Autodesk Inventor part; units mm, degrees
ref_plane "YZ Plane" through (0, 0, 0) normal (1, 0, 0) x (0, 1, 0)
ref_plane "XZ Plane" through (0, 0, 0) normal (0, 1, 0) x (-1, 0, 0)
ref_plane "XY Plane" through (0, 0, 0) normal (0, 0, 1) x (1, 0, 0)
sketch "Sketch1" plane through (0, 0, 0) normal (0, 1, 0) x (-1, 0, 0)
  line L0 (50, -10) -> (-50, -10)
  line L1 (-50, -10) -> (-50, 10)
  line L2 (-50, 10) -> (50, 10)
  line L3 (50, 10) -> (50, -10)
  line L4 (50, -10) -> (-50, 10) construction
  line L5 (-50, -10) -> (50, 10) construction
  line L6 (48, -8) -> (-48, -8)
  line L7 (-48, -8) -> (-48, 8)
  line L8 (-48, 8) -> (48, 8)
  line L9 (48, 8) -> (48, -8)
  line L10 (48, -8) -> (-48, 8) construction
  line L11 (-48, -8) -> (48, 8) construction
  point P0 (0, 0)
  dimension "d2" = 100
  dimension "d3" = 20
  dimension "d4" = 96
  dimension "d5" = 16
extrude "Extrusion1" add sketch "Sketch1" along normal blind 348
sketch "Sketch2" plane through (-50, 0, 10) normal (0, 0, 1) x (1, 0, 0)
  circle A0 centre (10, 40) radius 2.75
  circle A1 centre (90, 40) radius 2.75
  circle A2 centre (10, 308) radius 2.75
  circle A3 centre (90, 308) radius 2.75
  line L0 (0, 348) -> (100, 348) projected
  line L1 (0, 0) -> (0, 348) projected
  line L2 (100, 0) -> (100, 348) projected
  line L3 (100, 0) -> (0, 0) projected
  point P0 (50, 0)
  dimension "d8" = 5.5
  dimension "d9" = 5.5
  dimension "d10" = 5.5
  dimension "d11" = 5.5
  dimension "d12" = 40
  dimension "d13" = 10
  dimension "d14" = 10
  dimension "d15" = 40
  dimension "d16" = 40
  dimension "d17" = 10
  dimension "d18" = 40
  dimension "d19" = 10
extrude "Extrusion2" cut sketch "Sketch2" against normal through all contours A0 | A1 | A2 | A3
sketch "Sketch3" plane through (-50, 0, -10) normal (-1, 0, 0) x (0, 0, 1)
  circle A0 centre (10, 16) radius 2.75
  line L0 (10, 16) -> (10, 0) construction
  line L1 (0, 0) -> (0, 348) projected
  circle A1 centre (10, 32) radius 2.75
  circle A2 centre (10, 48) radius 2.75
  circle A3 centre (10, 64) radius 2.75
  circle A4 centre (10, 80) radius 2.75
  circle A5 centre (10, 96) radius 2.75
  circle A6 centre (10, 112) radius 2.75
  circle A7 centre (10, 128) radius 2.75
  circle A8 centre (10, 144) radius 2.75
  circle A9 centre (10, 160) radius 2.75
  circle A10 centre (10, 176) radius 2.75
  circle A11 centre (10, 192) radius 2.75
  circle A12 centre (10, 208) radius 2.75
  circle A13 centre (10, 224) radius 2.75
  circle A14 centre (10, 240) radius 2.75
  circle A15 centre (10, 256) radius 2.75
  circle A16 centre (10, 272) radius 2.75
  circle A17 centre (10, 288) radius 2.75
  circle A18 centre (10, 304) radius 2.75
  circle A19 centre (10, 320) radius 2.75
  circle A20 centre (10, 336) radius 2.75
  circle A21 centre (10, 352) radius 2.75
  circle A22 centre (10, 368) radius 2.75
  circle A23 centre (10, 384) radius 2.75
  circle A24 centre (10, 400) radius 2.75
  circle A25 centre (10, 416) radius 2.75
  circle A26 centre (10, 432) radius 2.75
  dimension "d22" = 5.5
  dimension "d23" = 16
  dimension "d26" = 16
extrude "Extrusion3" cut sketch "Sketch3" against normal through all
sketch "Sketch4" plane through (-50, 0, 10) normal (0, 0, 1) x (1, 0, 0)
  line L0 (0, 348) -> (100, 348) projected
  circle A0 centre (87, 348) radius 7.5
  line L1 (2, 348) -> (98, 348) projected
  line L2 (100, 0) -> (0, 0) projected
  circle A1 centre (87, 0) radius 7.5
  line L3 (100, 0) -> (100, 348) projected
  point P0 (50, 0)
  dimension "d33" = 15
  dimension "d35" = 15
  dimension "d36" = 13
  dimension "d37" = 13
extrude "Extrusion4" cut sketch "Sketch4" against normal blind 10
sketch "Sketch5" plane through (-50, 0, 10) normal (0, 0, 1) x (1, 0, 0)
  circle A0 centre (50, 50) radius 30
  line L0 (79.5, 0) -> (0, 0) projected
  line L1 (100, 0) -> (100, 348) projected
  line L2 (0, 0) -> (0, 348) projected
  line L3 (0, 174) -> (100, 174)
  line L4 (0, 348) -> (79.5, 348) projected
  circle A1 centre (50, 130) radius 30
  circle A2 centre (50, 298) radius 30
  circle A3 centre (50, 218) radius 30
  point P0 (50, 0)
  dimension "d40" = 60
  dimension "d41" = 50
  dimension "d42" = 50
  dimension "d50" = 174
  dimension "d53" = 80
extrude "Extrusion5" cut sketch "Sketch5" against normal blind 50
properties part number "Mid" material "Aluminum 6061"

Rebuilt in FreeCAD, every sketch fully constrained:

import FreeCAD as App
import Part
import Sketcher
Q = App.Units.Quantity


def add_polygon(sketch, points):
    """Adds a closed chain of lines whose ends are joined by coincident constraints."""
    first, n = sketch.GeometryCount, len(points)
    for a, b in zip(points, points[1:] + points[:1]):
        sketch.addGeometry(Part.LineSegment(App.Vector(*a, 0), App.Vector(*b, 0)), False)
    for i in range(n):
        sketch.addConstraint(Sketcher.Constraint("Coincident", first + i, 2, first + (i + 1) % n, 1))

doc = App.newDocument("Part")
body = doc.addObject("PartDesign::Body", "Body")

# Sketch on XZ plane
sketch1 = body.newObject("Sketcher::SketchObject", "Sketch")
sketch1.AttachmentSupport = (doc.getObject("XZ_Plane"), [""])
sketch1.MapMode = "FlatFace"
add_polygon(sketch1, [(50, -10), (-50, -10), (-50, 10), (50, 10)])  # lines 0-3
add_polygon(sketch1, [(-48, 8), (-48, -8), (48, -8), (48, 8)])  # lines 4-7
sketch1.addConstraint(Sketcher.Constraint("Horizontal", 0))
sketch1.addConstraint(Sketcher.Constraint("Vertical", 1))
sketch1.addConstraint(Sketcher.Constraint("Horizontal", 2))
sketch1.addConstraint(Sketcher.Constraint("Vertical", 3))
sketch1.addConstraint(Sketcher.Constraint("Vertical", 4))
sketch1.addConstraint(Sketcher.Constraint("Horizontal", 5))
sketch1.addConstraint(Sketcher.Constraint("Vertical", 6))
sketch1.addConstraint(Sketcher.Constraint("Horizontal", 7))
sketch1.addConstraint(Sketcher.Constraint("Symmetric", 0, 2, 2, 2, -1, 1))
sketch1.addConstraint(Sketcher.Constraint("Symmetric", 4, 2, 6, 2, -1, 1))
sketch1.addConstraint(Sketcher.Constraint("DistanceX", 0, 2, 0, 1, Q("100 mm")))
sketch1.addConstraint(Sketcher.Constraint("DistanceX", 5, 1, 5, 2, Q("96 mm")))
sketch1.addConstraint(Sketcher.Constraint("DistanceY", 1, 1, 1, 2, Q("20 mm")))
sketch1.addConstraint(Sketcher.Constraint("DistanceY", 4, 2, 4, 1, Q("16 mm")))
pad1 = body.newObject("PartDesign::Pad", "Pad")
pad1.Profile = sketch1
pad1.Length = 348
pad1.Reversed = True

# Sketch on XY plane
sketch2 = body.newObject("Sketcher::SketchObject", "Sketch001")
sketch2.AttachmentSupport = (doc.getObject("XY_Plane"), [""])
sketch2.MapMode = "FlatFace"
sketch2.AttachmentOffset = App.Placement(App.Vector(0, 0, 10), App.Rotation())
sketch2.addGeometry(Part.Circle(App.Vector(-40, 40, 0), App.Vector(0, 0, 1), 2.8), False)
sketch2.addGeometry(Part.Circle(App.Vector(40, 40, 0), App.Vector(0, 0, 1), 2.8), False)
sketch2.addGeometry(Part.Circle(App.Vector(-40, 308, 0), App.Vector(0, 0, 1), 2.8), False)
sketch2.addGeometry(Part.Circle(App.Vector(40, 308, 0), App.Vector(0, 0, 1), 2.8), False)
sketch2.addConstraint(Sketcher.Constraint("Equal", 0, 1))
sketch2.addConstraint(Sketcher.Constraint("Equal", 1, 2))
sketch2.addConstraint(Sketcher.Constraint("Equal", 2, 3))
sketch2.addConstraint(Sketcher.Constraint("Symmetric", 0, 3, 1, 3, -2))
sketch2.addConstraint(Sketcher.Constraint("Symmetric", 2, 3, 3, 3, -2))
sketch2.addConstraint(Sketcher.Constraint("Vertical", 0, 3, 2, 3))
sketch2.addConstraint(Sketcher.Constraint("Diameter", 0, Q("5.5 mm")))
sketch2.addConstraint(Sketcher.Constraint("DistanceX", 0, 3, -1, 1, Q("40 mm")))
sketch2.addConstraint(Sketcher.Constraint("DistanceY", -1, 1, 0, 3, Q("40 mm")))
sketch2.addConstraint(Sketcher.Constraint("DistanceY", -1, 1, 2, 3, Q("308 mm")))
pocket1 = body.newObject("PartDesign::Pocket", "Pocket")
pocket1.Profile = sketch2
pocket1.Type = "ThroughAll"

# Sketch on YZ plane
sketch3 = body.newObject("Sketcher::SketchObject", "Sketch002")
sketch3.AttachmentSupport = (doc.getObject("YZ_Plane"), [""])
sketch3.MapMode = "FlatFace"
sketch3.AttachmentOffset = App.Placement(App.Vector(0, 0, -50), App.Rotation())
sketch3.addGeometry(Part.Circle(App.Vector(16, 0, 0), App.Vector(0, 0, 1), 2.8), False)
sketch3.addGeometry(Part.Circle(App.Vector(32, 0, 0), App.Vector(0, 0, 1), 2.8), False)
sketch3.addGeometry(Part.Circle(App.Vector(48, 0, 0), App.Vector(0, 0, 1), 2.8), False)
sketch3.addGeometry(Part.Circle(App.Vector(64, 0, 0), App.Vector(0, 0, 1), 2.8), False)
sketch3.addGeometry(Part.Circle(App.Vector(80, 0, 0), App.Vector(0, 0, 1), 2.8), False)
sketch3.addGeometry(Part.Circle(App.Vector(96, 0, 0), App.Vector(0, 0, 1), 2.8), False)
sketch3.addGeometry(Part.Circle(App.Vector(112, 0, 0), App.Vector(0, 0, 1), 2.8), False)
sketch3.addGeometry(Part.Circle(App.Vector(128, 0, 0), App.Vector(0, 0, 1), 2.8), False)
sketch3.addGeometry(Part.Circle(App.Vector(144, 0, 0), App.Vector(0, 0, 1), 2.8), False)
sketch3.addGeometry(Part.Circle(App.Vector(160, 0, 0), App.Vector(0, 0, 1), 2.8), False)
sketch3.addGeometry(Part.Circle(App.Vector(176, 0, 0), App.Vector(0, 0, 1), 2.8), False)
sketch3.addGeometry(Part.Circle(App.Vector(192, 0, 0), App.Vector(0, 0, 1), 2.8), False)
sketch3.addGeometry(Part.Circle(App.Vector(208, 0, 0), App.Vector(0, 0, 1), 2.8), False)
sketch3.addGeometry(Part.Circle(App.Vector(224, 0, 0), App.Vector(0, 0, 1), 2.8), False)
sketch3.addGeometry(Part.Circle(App.Vector(240, 0, 0), App.Vector(0, 0, 1), 2.8), False)
sketch3.addGeometry(Part.Circle(App.Vector(256, 0, 0), App.Vector(0, 0, 1), 2.8), False)
sketch3.addGeometry(Part.Circle(App.Vector(272, 0, 0), App.Vector(0, 0, 1), 2.8), False)
sketch3.addGeometry(Part.Circle(App.Vector(288, 0, 0), App.Vector(0, 0, 1), 2.8), False)
sketch3.addGeometry(Part.Circle(App.Vector(304, 0, 0), App.Vector(0, 0, 1), 2.8), False)
sketch3.addGeometry(Part.Circle(App.Vector(320, 0, 0), App.Vector(0, 0, 1), 2.8), False)
sketch3.addGeometry(Part.Circle(App.Vector(336, 0, 0), App.Vector(0, 0, 1), 2.8), False)
sketch3.addGeometry(Part.Circle(App.Vector(352, 0, 0), App.Vector(0, 0, 1), 2.8), False)
sketch3.addGeometry(Part.Circle(App.Vector(368, 0, 0), App.Vector(0, 0, 1), 2.8), False)
sketch3.addGeometry(Part.Circle(App.Vector(384, 0, 0), App.Vector(0, 0, 1), 2.8), False)
sketch3.addGeometry(Part.Circle(App.Vector(400, 0, 0), App.Vector(0, 0, 1), 2.8), False)
sketch3.addGeometry(Part.Circle(App.Vector(416, 0, 0), App.Vector(0, 0, 1), 2.8), False)
sketch3.addGeometry(Part.Circle(App.Vector(432, 0, 0), App.Vector(0, 0, 1), 2.8), False)
sketch3.addConstraint(Sketcher.Constraint("Equal", 0, 1))
sketch3.addConstraint(Sketcher.Constraint("Equal", 1, 2))
sketch3.addConstraint(Sketcher.Constraint("Equal", 2, 3))
sketch3.addConstraint(Sketcher.Constraint("Equal", 3, 4))
sketch3.addConstraint(Sketcher.Constraint("Equal", 4, 5))
sketch3.addConstraint(Sketcher.Constraint("Equal", 5, 6))
sketch3.addConstraint(Sketcher.Constraint("Equal", 6, 7))
sketch3.addConstraint(Sketcher.Constraint("Equal", 7, 8))
sketch3.addConstraint(Sketcher.Constraint("Equal", 8, 9))
sketch3.addConstraint(Sketcher.Constraint("Equal", 9, 10))
sketch3.addConstraint(Sketcher.Constraint("Equal", 10, 11))
sketch3.addConstraint(Sketcher.Constraint("Equal", 11, 12))
sketch3.addConstraint(Sketcher.Constraint("Equal", 12, 13))
sketch3.addConstraint(Sketcher.Constraint("Equal", 13, 14))
sketch3.addConstraint(Sketcher.Constraint("Equal", 14, 15))
sketch3.addConstraint(Sketcher.Constraint("Equal", 15, 16))
sketch3.addConstraint(Sketcher.Constraint("Equal", 16, 17))
sketch3.addConstraint(Sketcher.Constraint("Equal", 17, 18))
sketch3.addConstraint(Sketcher.Constraint("Equal", 18, 19))
sketch3.addConstraint(Sketcher.Constraint("Equal", 19, 20))
sketch3.addConstraint(Sketcher.Constraint("Equal", 20, 21))
sketch3.addConstraint(Sketcher.Constraint("Equal", 21, 22))
sketch3.addConstraint(Sketcher.Constraint("Equal", 22, 23))
sketch3.addConstraint(Sketcher.Constraint("Equal", 23, 24))
sketch3.addConstraint(Sketcher.Constraint("Equal", 24, 25))
sketch3.addConstraint(Sketcher.Constraint("Equal", 25, 26))
sketch3.addConstraint(Sketcher.Constraint("PointOnObject", 0, 3, -1))
sketch3.addConstraint(Sketcher.Constraint("PointOnObject", 1, 3, -1))
sketch3.addConstraint(Sketcher.Constraint("PointOnObject", 2, 3, -1))
sketch3.addConstraint(Sketcher.Constraint("PointOnObject", 3, 3, -1))
sketch3.addConstraint(Sketcher.Constraint("PointOnObject", 4, 3, -1))
sketch3.addConstraint(Sketcher.Constraint("PointOnObject", 5, 3, -1))
sketch3.addConstraint(Sketcher.Constraint("PointOnObject", 6, 3, -1))
sketch3.addConstraint(Sketcher.Constraint("PointOnObject", 7, 3, -1))
sketch3.addConstraint(Sketcher.Constraint("PointOnObject", 8, 3, -1))
sketch3.addConstraint(Sketcher.Constraint("PointOnObject", 9, 3, -1))
sketch3.addConstraint(Sketcher.Constraint("PointOnObject", 10, 3, -1))
sketch3.addConstraint(Sketcher.Constraint("PointOnObject", 11, 3, -1))
sketch3.addConstraint(Sketcher.Constraint("PointOnObject", 12, 3, -1))
sketch3.addConstraint(Sketcher.Constraint("PointOnObject", 13, 3, -1))
sketch3.addConstraint(Sketcher.Constraint("PointOnObject", 14, 3, -1))
sketch3.addConstraint(Sketcher.Constraint("PointOnObject", 15, 3, -1))
sketch3.addConstraint(Sketcher.Constraint("PointOnObject", 16, 3, -1))
sketch3.addConstraint(Sketcher.Constraint("PointOnObject", 17, 3, -1))
sketch3.addConstraint(Sketcher.Constraint("PointOnObject", 18, 3, -1))
sketch3.addConstraint(Sketcher.Constraint("PointOnObject", 19, 3, -1))
sketch3.addConstraint(Sketcher.Constraint("PointOnObject", 20, 3, -1))
sketch3.addConstraint(Sketcher.Constraint("PointOnObject", 21, 3, -1))
sketch3.addConstraint(Sketcher.Constraint("PointOnObject", 22, 3, -1))
sketch3.addConstraint(Sketcher.Constraint("PointOnObject", 23, 3, -1))
sketch3.addConstraint(Sketcher.Constraint("PointOnObject", 24, 3, -1))
sketch3.addConstraint(Sketcher.Constraint("PointOnObject", 25, 3, -1))
sketch3.addConstraint(Sketcher.Constraint("PointOnObject", 26, 3, -1))
sketch3.addConstraint(Sketcher.Constraint("Diameter", 0, Q("5.5 mm")))
sketch3.addConstraint(Sketcher.Constraint("DistanceX", -1, 1, 0, 3, Q("16 mm")))
sketch3.addConstraint(Sketcher.Constraint("DistanceX", 0, 3, 1, 3, Q("16 mm")))
sketch3.addConstraint(Sketcher.Constraint("DistanceX", 1, 3, 2, 3, Q("16 mm")))
sketch3.addConstraint(Sketcher.Constraint("DistanceX", 2, 3, 3, 3, Q("16 mm")))
sketch3.addConstraint(Sketcher.Constraint("DistanceX", 3, 3, 4, 3, Q("16 mm")))
sketch3.addConstraint(Sketcher.Constraint("DistanceX", 4, 3, 5, 3, Q("16 mm")))
sketch3.addConstraint(Sketcher.Constraint("DistanceX", 5, 3, 6, 3, Q("16 mm")))
sketch3.addConstraint(Sketcher.Constraint("DistanceX", 6, 3, 7, 3, Q("16 mm")))
sketch3.addConstraint(Sketcher.Constraint("DistanceX", 7, 3, 8, 3, Q("16 mm")))
sketch3.addConstraint(Sketcher.Constraint("DistanceX", 8, 3, 9, 3, Q("16 mm")))
sketch3.addConstraint(Sketcher.Constraint("DistanceX", 9, 3, 10, 3, Q("16 mm")))
sketch3.addConstraint(Sketcher.Constraint("DistanceX", 10, 3, 11, 3, Q("16 mm")))
sketch3.addConstraint(Sketcher.Constraint("DistanceX", 11, 3, 12, 3, Q("16 mm")))
sketch3.addConstraint(Sketcher.Constraint("DistanceX", 12, 3, 13, 3, Q("16 mm")))
sketch3.addConstraint(Sketcher.Constraint("DistanceX", 13, 3, 14, 3, Q("16 mm")))
sketch3.addConstraint(Sketcher.Constraint("DistanceX", 14, 3, 15, 3, Q("16 mm")))
sketch3.addConstraint(Sketcher.Constraint("DistanceX", 15, 3, 16, 3, Q("16 mm")))
sketch3.addConstraint(Sketcher.Constraint("DistanceX", 16, 3, 17, 3, Q("16 mm")))
sketch3.addConstraint(Sketcher.Constraint("DistanceX", 17, 3, 18, 3, Q("16 mm")))
sketch3.addConstraint(Sketcher.Constraint("DistanceX", 18, 3, 19, 3, Q("16 mm")))
sketch3.addConstraint(Sketcher.Constraint("DistanceX", 19, 3, 20, 3, Q("16 mm")))
sketch3.addConstraint(Sketcher.Constraint("DistanceX", 20, 3, 21, 3, Q("16 mm")))
sketch3.addConstraint(Sketcher.Constraint("DistanceX", 21, 3, 22, 3, Q("16 mm")))
sketch3.addConstraint(Sketcher.Constraint("DistanceX", 22, 3, 23, 3, Q("16 mm")))
sketch3.addConstraint(Sketcher.Constraint("DistanceX", 23, 3, 24, 3, Q("16 mm")))
sketch3.addConstraint(Sketcher.Constraint("DistanceX", 24, 3, 25, 3, Q("16 mm")))
sketch3.addConstraint(Sketcher.Constraint("DistanceX", 25, 3, 26, 3, Q("16 mm")))
pocket2 = body.newObject("PartDesign::Pocket", "Pocket001")
pocket2.Profile = sketch3
pocket2.Type = "ThroughAll"
pocket2.Reversed = True

# Sketch on XY plane
sketch4 = body.newObject("Sketcher::SketchObject", "Sketch003")
sketch4.AttachmentSupport = (doc.getObject("XY_Plane"), [""])
sketch4.MapMode = "FlatFace"
sketch4.AttachmentOffset = App.Placement(App.Vector(0, 0, 10), App.Rotation())
sketch4.addGeometry(Part.Circle(App.Vector(37, 0, 0), App.Vector(0, 0, 1), 8), False)
sketch4.addGeometry(Part.Circle(App.Vector(37, 348, 0), App.Vector(0, 0, 1), 8), False)
sketch4.addConstraint(Sketcher.Constraint("Equal", 0, 1))
sketch4.addConstraint(Sketcher.Constraint("PointOnObject", 0, 3, -1))
sketch4.addConstraint(Sketcher.Constraint("Vertical", 0, 3, 1, 3))
sketch4.addConstraint(Sketcher.Constraint("Diameter", 0, Q("15 mm")))
sketch4.addConstraint(Sketcher.Constraint("DistanceX", -1, 1, 0, 3, Q("37 mm")))
sketch4.addConstraint(Sketcher.Constraint("DistanceY", -1, 1, 1, 3, Q("348 mm")))
pocket3 = body.newObject("PartDesign::Pocket", "Pocket002")
pocket3.Profile = sketch4
pocket3.Length = 10

# Sketch on XY plane
sketch5 = body.newObject("Sketcher::SketchObject", "Sketch004")
sketch5.AttachmentSupport = (doc.getObject("XY_Plane"), [""])
sketch5.MapMode = "FlatFace"
sketch5.AttachmentOffset = App.Placement(App.Vector(0, 0, 10), App.Rotation())
sketch5.addGeometry(Part.Circle(App.Vector(0, 50, 0), App.Vector(0, 0, 1), 30), False)
sketch5.addGeometry(Part.Circle(App.Vector(0, 130, 0), App.Vector(0, 0, 1), 30), False)
sketch5.addGeometry(Part.Circle(App.Vector(0, 298, 0), App.Vector(0, 0, 1), 30), False)
sketch5.addGeometry(Part.Circle(App.Vector(0, 218, 0), App.Vector(0, 0, 1), 30), False)
sketch5.addConstraint(Sketcher.Constraint("Equal", 0, 1))
sketch5.addConstraint(Sketcher.Constraint("Equal", 1, 2))
sketch5.addConstraint(Sketcher.Constraint("Equal", 2, 3))
sketch5.addConstraint(Sketcher.Constraint("PointOnObject", 0, 3, -2))
sketch5.addConstraint(Sketcher.Constraint("PointOnObject", 1, 3, -2))
sketch5.addConstraint(Sketcher.Constraint("PointOnObject", 2, 3, -2))
sketch5.addConstraint(Sketcher.Constraint("PointOnObject", 3, 3, -2))
sketch5.addConstraint(Sketcher.Constraint("Diameter", 0, Q("60 mm")))
sketch5.addConstraint(Sketcher.Constraint("DistanceY", -1, 1, 0, 3, Q("50 mm")))
sketch5.addConstraint(Sketcher.Constraint("DistanceY", 0, 3, 1, 3, Q("80 mm")))
sketch5.addConstraint(Sketcher.Constraint("DistanceY", 3, 3, 2, 3, Q("80 mm")))
sketch5.addConstraint(Sketcher.Constraint("DistanceY", -1, 1, 2, 3, Q("298 mm")))
pocket4 = body.newObject("PartDesign::Pocket", "Pocket003")
pocket4.Profile = sketch5
pocket4.Length = 50

doc.recompute()
